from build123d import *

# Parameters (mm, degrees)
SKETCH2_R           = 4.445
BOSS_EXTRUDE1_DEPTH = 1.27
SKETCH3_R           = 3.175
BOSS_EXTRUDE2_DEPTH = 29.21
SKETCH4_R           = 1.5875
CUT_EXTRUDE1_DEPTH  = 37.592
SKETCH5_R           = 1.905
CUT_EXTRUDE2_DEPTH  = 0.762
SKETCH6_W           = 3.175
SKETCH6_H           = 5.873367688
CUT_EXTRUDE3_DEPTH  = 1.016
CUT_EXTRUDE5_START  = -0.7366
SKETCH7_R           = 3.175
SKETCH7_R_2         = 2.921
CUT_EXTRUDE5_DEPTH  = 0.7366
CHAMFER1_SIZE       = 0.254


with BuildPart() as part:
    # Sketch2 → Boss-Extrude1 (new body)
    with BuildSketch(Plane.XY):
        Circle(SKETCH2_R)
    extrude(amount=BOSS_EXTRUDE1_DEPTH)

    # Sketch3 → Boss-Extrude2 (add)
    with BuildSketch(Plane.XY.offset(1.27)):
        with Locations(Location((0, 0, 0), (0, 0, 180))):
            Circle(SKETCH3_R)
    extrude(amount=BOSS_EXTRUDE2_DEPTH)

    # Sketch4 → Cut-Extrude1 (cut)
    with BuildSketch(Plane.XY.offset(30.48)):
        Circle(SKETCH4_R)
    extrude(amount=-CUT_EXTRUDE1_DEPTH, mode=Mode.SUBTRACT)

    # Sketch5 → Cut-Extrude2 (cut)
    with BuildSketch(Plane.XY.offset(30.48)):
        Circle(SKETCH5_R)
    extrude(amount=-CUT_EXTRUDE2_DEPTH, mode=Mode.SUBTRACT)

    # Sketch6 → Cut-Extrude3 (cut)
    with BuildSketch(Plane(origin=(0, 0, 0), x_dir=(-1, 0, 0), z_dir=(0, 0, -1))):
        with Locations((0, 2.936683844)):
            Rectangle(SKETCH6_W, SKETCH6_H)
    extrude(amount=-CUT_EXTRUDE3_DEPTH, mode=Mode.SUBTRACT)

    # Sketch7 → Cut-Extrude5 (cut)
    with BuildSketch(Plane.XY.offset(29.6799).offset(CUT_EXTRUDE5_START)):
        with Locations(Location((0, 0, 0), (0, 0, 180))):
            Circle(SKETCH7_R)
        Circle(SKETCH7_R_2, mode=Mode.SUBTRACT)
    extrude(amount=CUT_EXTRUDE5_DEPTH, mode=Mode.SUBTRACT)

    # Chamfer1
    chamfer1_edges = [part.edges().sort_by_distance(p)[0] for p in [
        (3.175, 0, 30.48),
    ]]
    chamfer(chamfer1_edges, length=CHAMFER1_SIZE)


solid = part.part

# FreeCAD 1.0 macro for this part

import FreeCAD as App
import Part
import Sketcher
from FreeCAD import Vector
Q = App.Units.Quantity


def edges_at(feature, points):
    """Names of the edges that pass closest to the given points."""
    edges = feature.Shape.Edges
    near = lambda p: min(range(len(edges)), key=lambda i: edges[i].distToShape(Part.Vertex(*p))[0])
    return sorted({f"Edge{near(p) + 1}" for p in points})


def add_polygon(sketch, points):
    """Adds a closed chain of lines whose ends are joined by coincident constraints."""
    first, n = sketch.GeometryCount, len(points)
    for a, b in zip(points, points[1:] + points[:1]):
        sketch.addGeometry(Part.LineSegment(App.Vector(*a, 0), App.Vector(*b, 0)), False)
    for i in range(n):
        sketch.addConstraint(Sketcher.Constraint("Coincident", first + i, 2, first + (i + 1) % n, 1))

doc = App.newDocument("Part")
body = doc.addObject("PartDesign::Body", "Body")

sketch1 = doc.addObject("Sketcher::SketchObject", "Sketch")
body.addObject(sketch1)
sketch1.AttachmentSupport = (doc.XY_Plane, [""])
sketch1.MapMode = "FlatFace"
sketch1.addGeometry(Part.Circle(Vector(0, 0, 0), Vector(0, 0, 1), 4.4), False)
sketch1.addConstraint([
    Sketcher.Constraint("Coincident", 0, 3, -1, 1),
    Sketcher.Constraint("Diameter", 0, Q("0.35 in")),
])
pad1 = doc.addObject("PartDesign::Pad", "Pad")
body.addObject(pad1)
pad1.Profile = sketch1
pad1.Length = Q("0.05 in")

sketch2 = doc.addObject("Sketcher::SketchObject", "Sketch001")
body.addObject(sketch2)
sketch2.AttachmentSupport = (doc.XY_Plane, [""])
sketch2.MapMode = "FlatFace"
sketch2.AttachmentOffset = App.Placement(Vector(0, 0, 0.05 * 25.4), App.Rotation())
sketch2.addGeometry(Part.Circle(Vector(0, 0, 0), Vector(0, 0, 1), 3.2), False)
sketch2.addConstraint([
    Sketcher.Constraint("Coincident", 0, 3, -1, 1),
    Sketcher.Constraint("Diameter", 0, Q("0.25 in")),
])
pad2 = doc.addObject("PartDesign::Pad", "Pad001")
body.addObject(pad2)
pad2.Profile = sketch2
pad2.Length = Q("1.15 in")

sketch3 = doc.addObject("Sketcher::SketchObject", "Sketch002")
body.addObject(sketch3)
sketch3.AttachmentSupport = (doc.XY_Plane, [""])
sketch3.MapMode = "FlatFace"
sketch3.AttachmentOffset = App.Placement(Vector(0, 0, 1.2 * 25.4), App.Rotation())
sketch3.addGeometry(Part.Circle(Vector(0, 0, 0), Vector(0, 0, 1), 1.6), False)
sketch3.addConstraint([
    Sketcher.Constraint("Coincident", 0, 3, -1, 1),
    Sketcher.Constraint("Diameter", 0, Q("0.125 in")),
])
pocket1 = doc.addObject("PartDesign::Pocket", "Pocket")
body.addObject(pocket1)
pocket1.Profile = sketch3
pocket1.Length = Q("1.48 in")

sketch4 = doc.addObject("Sketcher::SketchObject", "Sketch003")
body.addObject(sketch4)
sketch4.AttachmentSupport = (doc.XY_Plane, [""])
sketch4.MapMode = "FlatFace"
sketch4.AttachmentOffset = App.Placement(Vector(0, 0, 1.2 * 25.4), App.Rotation())
sketch4.addGeometry(Part.Circle(Vector(0, 0, 0), Vector(0, 0, 1), 1.9), False)
sketch4.addConstraint([
    Sketcher.Constraint("Coincident", 0, 3, -1, 1),
    Sketcher.Constraint("Diameter", 0, Q("0.15 in")),
])
pocket2 = doc.addObject("PartDesign::Pocket", "Pocket001")
body.addObject(pocket2)
pocket2.Profile = sketch4
pocket2.Length = Q("0.03 in")

sketch5 = doc.addObject("Sketcher::SketchObject", "Sketch004")
body.addObject(sketch5)
sketch5.AttachmentSupport = (doc.XY_Plane, [""])
sketch5.MapMode = "FlatFace"
add_polygon(sketch5, [(1.6, 5.9), (1.6, 0), (-1.6, 0), (-1.6, 5.9)])
sketch5.addConstraint([
    Sketcher.Constraint("Vertical", 0),
    Sketcher.Constraint("Horizontal", 1),
    Sketcher.Constraint("Vertical", 2),
    Sketcher.Constraint("Horizontal", 3),
    Sketcher.Constraint("Symmetric", 0, 2, 1, 2, -1, 1),
    Sketcher.Constraint("DistanceX", 1, 2, 1, 1, Q("0.125 in")),
    Sketcher.Constraint("DistanceY", 0, 2, 0, 1, Q("5.873368 mm")),
])
pocket3 = doc.addObject("PartDesign::Pocket", "Pocket002")
body.addObject(pocket3)
pocket3.Profile = sketch5
pocket3.Length = Q("0.04 in")
pocket3.Reversed = True

sketch6 = doc.addObject("Sketcher::SketchObject", "Sketch005")
body.addObject(sketch6)
sketch6.AttachmentSupport = (doc.XY_Plane, [""])
sketch6.MapMode = "FlatFace"
sketch6.AttachmentOffset = App.Placement(Vector(0, 0, 1.1395 * 25.4), App.Rotation())
sketch6.addGeometry([
    Part.Circle(Vector(0, 0, 0), Vector(0, 0, 1), 3.2),
    Part.Circle(Vector(0, 0, 0), Vector(0, 0, 1), 2.9),
], False)
sketch6.addConstraint([
    Sketcher.Constraint("Coincident", 0, 3, -1, 1),
    Sketcher.Constraint("Coincident", 1, 3, -1, 1),
    Sketcher.Constraint("Diameter", 0, Q("0.25 in")),
    Sketcher.Constraint("Diameter", 1, Q("0.23 in")),
])
pocket4 = doc.addObject("PartDesign::Pocket", "Pocket003")
body.addObject(pocket4)
pocket4.Profile = sketch6
pocket4.Length = Q("0.029 in")
pocket4.Reversed = True
doc.recompute()

chamfer = doc.addObject("PartDesign::Chamfer", "Chamfer")
body.addObject(chamfer)
chamfer.Base = (pocket4, edges_at(pocket4, [(3.175, 0, 30.48)]))
chamfer.Size = Q("0.01 in")

doc.recompute()
